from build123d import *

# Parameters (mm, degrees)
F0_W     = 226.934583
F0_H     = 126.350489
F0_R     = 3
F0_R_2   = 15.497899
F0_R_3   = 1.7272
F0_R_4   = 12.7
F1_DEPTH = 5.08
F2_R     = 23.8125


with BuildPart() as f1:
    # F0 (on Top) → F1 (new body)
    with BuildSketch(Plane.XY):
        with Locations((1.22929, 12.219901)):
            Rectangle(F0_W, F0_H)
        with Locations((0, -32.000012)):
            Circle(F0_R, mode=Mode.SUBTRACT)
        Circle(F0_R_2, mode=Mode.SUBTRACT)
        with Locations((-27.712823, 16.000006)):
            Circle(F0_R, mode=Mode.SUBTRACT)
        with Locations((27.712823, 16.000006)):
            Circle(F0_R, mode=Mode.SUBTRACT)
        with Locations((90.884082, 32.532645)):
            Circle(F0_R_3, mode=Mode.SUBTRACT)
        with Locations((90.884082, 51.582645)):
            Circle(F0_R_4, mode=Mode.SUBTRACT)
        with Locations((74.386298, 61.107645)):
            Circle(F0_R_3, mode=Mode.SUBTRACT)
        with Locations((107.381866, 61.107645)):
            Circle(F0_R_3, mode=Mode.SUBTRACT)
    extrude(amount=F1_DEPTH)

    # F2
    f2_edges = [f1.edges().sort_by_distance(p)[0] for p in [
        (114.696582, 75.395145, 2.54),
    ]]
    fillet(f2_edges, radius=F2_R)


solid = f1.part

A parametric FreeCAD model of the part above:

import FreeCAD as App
import Part
import Sketcher
Q = App.Units.Quantity


def edges_at(feature, points):
    """Names of the edges that pass closest to the given points."""
    edges = feature.Shape.Edges
    near = lambda p: min(range(len(edges)), key=lambda i: edges[i].distToShape(Part.Vertex(*p))[0])
    return sorted({f"Edge{near(p) + 1}" for p in points})


def add_polygon(sketch, points):
    """Adds a closed chain of lines whose ends are joined by coincident constraints."""
    first, n = sketch.GeometryCount, len(points)
    for a, b in zip(points, points[1:] + points[:1]):
        sketch.addGeometry(Part.LineSegment(App.Vector(*a, 0), App.Vector(*b, 0)), False)
    for i in range(n):
        sketch.addConstraint(Sketcher.Constraint("Coincident", first + i, 2, first + (i + 1) % n, 1))

doc = App.newDocument("Part")
body = doc.addObject("PartDesign::Body", "Body")

# Sketch on XY plane
sketch1 = body.newObject("Sketcher::SketchObject", "Sketch")
sketch1.AttachmentSupport = (doc.getObject("XY_Plane"), [""])
sketch1.MapMode = "FlatFace"
add_polygon(sketch1, [(-112.238001, 75.395145), (-112.238001, -50.955343), (114.696581, -50.955343), (114.696581, 75.395145)])  # lines 0-3
sketch1.addGeometry(Part.Circle(App.Vector(0, -32.000012, 0), App.Vector(0, 0, 1), 3), False)  # 4
sketch1.addGeometry(Part.Circle(App.Vector(0, 0, 0), App.Vector(0, 0, 1), 15.497899), False)  # 5
sketch1.addGeometry(Part.Circle(App.Vector(-27.712823, 16.000006, 0), App.Vector(0, 0, 1), 3), False)  # 6
sketch1.addGeometry(Part.Circle(App.Vector(27.712823, 16.000006, 0), App.Vector(0, 0, 1), 3), False)  # 7
sketch1.addGeometry(Part.Circle(App.Vector(90.884082, 32.532645, 0), App.Vector(0, 0, 1), 1.7272), False)  # 8
sketch1.addGeometry(Part.Circle(App.Vector(90.884082, 51.582645, 0), App.Vector(0, 0, 1), 12.7), False)  # 9
sketch1.addGeometry(Part.Circle(App.Vector(74.386298, 61.107645, 0), App.Vector(0, 0, 1), 1.7272), False)  # 10
sketch1.addGeometry(Part.Circle(App.Vector(107.381866, 61.107645, 0), App.Vector(0, 0, 1), 1.7272), False)  # 11
sketch1.addConstraint([
    Sketcher.Constraint("Vertical", 0),
    Sketcher.Constraint("Horizontal", 1),
    Sketcher.Constraint("Vertical", 2),
    Sketcher.Constraint("Horizontal", 3),
    Sketcher.Constraint("Coincident", 5, 3, -1, 1),
    Sketcher.Constraint("Equal", 4, 6),
    Sketcher.Constraint("Equal", 6, 7),
    Sketcher.Constraint("Equal", 8, 10),
    Sketcher.Constraint("Equal", 10, 11),
    Sketcher.Constraint("Symmetric", 6, 3, 7, 3, -2),
    Sketcher.Constraint("PointOnObject", 4, 3, -2),
    Sketcher.Constraint("Horizontal", 10, 3, 11, 3),
    Sketcher.Constraint("Vertical", 8, 3, 9, 3),
    Sketcher.Constraint("Diameter", 9, Q("1 in")),
    Sketcher.Constraint("Diameter", 8, Q("0.136 in")),
    Sketcher.Constraint("Diameter", 4, 6.0),
    Sketcher.Constraint("Diameter", 5, 30.995798),
    Sketcher.Constraint("DistanceY", 8, 3, 9, 3, Q("0.75 in")),
    Sketcher.Constraint("DistanceY", 9, 3, 10, 3, Q("0.375 in")),
    Sketcher.Constraint("DistanceX", 8, 3, 1, 2, Q("0.9375 in")),
    Sketcher.Constraint("DistanceY", 11, 3, 2, 2, Q("0.5625 in")),
    Sketcher.Constraint("DistanceY", 0, 2, 0, 1, 126.350489),
    Sketcher.Constraint("DistanceX", 0, 2, -1, 1, 112.238001),
    Sketcher.Constraint("DistanceX", 0, 2, 10, 3, 186.6243),
    Sketcher.Constraint("DistanceX", 1, 1, 1, 2, 226.934583),
    Sketcher.Constraint("DistanceY", 4, 3, -1, 1, 32.000012),
    Sketcher.Constraint("DistanceX", 7, 3, 8, 3, 63.171259),
    Sketcher.Constraint("DistanceY", 7, 3, 8, 3, 16.532639),
    Sketcher.Constraint("DistanceX", 10, 3, 11, 3, 32.995568),
    Sketcher.Constraint("DistanceY", 0, 2, 4, 3, 18.955331),
])
pad1 = body.newObject("PartDesign::Pad", "Pad")
pad1.Profile = sketch1
pad1.Length = Q("0.2 in")
doc.recompute()

fillet = body.newObject("PartDesign::Fillet", "Fillet")
fillet.Base = (pad1, edges_at(pad1, [(114.697, 75.395, 2.54)]))
fillet.Radius = Q("0.9375 in")

doc.recompute()
